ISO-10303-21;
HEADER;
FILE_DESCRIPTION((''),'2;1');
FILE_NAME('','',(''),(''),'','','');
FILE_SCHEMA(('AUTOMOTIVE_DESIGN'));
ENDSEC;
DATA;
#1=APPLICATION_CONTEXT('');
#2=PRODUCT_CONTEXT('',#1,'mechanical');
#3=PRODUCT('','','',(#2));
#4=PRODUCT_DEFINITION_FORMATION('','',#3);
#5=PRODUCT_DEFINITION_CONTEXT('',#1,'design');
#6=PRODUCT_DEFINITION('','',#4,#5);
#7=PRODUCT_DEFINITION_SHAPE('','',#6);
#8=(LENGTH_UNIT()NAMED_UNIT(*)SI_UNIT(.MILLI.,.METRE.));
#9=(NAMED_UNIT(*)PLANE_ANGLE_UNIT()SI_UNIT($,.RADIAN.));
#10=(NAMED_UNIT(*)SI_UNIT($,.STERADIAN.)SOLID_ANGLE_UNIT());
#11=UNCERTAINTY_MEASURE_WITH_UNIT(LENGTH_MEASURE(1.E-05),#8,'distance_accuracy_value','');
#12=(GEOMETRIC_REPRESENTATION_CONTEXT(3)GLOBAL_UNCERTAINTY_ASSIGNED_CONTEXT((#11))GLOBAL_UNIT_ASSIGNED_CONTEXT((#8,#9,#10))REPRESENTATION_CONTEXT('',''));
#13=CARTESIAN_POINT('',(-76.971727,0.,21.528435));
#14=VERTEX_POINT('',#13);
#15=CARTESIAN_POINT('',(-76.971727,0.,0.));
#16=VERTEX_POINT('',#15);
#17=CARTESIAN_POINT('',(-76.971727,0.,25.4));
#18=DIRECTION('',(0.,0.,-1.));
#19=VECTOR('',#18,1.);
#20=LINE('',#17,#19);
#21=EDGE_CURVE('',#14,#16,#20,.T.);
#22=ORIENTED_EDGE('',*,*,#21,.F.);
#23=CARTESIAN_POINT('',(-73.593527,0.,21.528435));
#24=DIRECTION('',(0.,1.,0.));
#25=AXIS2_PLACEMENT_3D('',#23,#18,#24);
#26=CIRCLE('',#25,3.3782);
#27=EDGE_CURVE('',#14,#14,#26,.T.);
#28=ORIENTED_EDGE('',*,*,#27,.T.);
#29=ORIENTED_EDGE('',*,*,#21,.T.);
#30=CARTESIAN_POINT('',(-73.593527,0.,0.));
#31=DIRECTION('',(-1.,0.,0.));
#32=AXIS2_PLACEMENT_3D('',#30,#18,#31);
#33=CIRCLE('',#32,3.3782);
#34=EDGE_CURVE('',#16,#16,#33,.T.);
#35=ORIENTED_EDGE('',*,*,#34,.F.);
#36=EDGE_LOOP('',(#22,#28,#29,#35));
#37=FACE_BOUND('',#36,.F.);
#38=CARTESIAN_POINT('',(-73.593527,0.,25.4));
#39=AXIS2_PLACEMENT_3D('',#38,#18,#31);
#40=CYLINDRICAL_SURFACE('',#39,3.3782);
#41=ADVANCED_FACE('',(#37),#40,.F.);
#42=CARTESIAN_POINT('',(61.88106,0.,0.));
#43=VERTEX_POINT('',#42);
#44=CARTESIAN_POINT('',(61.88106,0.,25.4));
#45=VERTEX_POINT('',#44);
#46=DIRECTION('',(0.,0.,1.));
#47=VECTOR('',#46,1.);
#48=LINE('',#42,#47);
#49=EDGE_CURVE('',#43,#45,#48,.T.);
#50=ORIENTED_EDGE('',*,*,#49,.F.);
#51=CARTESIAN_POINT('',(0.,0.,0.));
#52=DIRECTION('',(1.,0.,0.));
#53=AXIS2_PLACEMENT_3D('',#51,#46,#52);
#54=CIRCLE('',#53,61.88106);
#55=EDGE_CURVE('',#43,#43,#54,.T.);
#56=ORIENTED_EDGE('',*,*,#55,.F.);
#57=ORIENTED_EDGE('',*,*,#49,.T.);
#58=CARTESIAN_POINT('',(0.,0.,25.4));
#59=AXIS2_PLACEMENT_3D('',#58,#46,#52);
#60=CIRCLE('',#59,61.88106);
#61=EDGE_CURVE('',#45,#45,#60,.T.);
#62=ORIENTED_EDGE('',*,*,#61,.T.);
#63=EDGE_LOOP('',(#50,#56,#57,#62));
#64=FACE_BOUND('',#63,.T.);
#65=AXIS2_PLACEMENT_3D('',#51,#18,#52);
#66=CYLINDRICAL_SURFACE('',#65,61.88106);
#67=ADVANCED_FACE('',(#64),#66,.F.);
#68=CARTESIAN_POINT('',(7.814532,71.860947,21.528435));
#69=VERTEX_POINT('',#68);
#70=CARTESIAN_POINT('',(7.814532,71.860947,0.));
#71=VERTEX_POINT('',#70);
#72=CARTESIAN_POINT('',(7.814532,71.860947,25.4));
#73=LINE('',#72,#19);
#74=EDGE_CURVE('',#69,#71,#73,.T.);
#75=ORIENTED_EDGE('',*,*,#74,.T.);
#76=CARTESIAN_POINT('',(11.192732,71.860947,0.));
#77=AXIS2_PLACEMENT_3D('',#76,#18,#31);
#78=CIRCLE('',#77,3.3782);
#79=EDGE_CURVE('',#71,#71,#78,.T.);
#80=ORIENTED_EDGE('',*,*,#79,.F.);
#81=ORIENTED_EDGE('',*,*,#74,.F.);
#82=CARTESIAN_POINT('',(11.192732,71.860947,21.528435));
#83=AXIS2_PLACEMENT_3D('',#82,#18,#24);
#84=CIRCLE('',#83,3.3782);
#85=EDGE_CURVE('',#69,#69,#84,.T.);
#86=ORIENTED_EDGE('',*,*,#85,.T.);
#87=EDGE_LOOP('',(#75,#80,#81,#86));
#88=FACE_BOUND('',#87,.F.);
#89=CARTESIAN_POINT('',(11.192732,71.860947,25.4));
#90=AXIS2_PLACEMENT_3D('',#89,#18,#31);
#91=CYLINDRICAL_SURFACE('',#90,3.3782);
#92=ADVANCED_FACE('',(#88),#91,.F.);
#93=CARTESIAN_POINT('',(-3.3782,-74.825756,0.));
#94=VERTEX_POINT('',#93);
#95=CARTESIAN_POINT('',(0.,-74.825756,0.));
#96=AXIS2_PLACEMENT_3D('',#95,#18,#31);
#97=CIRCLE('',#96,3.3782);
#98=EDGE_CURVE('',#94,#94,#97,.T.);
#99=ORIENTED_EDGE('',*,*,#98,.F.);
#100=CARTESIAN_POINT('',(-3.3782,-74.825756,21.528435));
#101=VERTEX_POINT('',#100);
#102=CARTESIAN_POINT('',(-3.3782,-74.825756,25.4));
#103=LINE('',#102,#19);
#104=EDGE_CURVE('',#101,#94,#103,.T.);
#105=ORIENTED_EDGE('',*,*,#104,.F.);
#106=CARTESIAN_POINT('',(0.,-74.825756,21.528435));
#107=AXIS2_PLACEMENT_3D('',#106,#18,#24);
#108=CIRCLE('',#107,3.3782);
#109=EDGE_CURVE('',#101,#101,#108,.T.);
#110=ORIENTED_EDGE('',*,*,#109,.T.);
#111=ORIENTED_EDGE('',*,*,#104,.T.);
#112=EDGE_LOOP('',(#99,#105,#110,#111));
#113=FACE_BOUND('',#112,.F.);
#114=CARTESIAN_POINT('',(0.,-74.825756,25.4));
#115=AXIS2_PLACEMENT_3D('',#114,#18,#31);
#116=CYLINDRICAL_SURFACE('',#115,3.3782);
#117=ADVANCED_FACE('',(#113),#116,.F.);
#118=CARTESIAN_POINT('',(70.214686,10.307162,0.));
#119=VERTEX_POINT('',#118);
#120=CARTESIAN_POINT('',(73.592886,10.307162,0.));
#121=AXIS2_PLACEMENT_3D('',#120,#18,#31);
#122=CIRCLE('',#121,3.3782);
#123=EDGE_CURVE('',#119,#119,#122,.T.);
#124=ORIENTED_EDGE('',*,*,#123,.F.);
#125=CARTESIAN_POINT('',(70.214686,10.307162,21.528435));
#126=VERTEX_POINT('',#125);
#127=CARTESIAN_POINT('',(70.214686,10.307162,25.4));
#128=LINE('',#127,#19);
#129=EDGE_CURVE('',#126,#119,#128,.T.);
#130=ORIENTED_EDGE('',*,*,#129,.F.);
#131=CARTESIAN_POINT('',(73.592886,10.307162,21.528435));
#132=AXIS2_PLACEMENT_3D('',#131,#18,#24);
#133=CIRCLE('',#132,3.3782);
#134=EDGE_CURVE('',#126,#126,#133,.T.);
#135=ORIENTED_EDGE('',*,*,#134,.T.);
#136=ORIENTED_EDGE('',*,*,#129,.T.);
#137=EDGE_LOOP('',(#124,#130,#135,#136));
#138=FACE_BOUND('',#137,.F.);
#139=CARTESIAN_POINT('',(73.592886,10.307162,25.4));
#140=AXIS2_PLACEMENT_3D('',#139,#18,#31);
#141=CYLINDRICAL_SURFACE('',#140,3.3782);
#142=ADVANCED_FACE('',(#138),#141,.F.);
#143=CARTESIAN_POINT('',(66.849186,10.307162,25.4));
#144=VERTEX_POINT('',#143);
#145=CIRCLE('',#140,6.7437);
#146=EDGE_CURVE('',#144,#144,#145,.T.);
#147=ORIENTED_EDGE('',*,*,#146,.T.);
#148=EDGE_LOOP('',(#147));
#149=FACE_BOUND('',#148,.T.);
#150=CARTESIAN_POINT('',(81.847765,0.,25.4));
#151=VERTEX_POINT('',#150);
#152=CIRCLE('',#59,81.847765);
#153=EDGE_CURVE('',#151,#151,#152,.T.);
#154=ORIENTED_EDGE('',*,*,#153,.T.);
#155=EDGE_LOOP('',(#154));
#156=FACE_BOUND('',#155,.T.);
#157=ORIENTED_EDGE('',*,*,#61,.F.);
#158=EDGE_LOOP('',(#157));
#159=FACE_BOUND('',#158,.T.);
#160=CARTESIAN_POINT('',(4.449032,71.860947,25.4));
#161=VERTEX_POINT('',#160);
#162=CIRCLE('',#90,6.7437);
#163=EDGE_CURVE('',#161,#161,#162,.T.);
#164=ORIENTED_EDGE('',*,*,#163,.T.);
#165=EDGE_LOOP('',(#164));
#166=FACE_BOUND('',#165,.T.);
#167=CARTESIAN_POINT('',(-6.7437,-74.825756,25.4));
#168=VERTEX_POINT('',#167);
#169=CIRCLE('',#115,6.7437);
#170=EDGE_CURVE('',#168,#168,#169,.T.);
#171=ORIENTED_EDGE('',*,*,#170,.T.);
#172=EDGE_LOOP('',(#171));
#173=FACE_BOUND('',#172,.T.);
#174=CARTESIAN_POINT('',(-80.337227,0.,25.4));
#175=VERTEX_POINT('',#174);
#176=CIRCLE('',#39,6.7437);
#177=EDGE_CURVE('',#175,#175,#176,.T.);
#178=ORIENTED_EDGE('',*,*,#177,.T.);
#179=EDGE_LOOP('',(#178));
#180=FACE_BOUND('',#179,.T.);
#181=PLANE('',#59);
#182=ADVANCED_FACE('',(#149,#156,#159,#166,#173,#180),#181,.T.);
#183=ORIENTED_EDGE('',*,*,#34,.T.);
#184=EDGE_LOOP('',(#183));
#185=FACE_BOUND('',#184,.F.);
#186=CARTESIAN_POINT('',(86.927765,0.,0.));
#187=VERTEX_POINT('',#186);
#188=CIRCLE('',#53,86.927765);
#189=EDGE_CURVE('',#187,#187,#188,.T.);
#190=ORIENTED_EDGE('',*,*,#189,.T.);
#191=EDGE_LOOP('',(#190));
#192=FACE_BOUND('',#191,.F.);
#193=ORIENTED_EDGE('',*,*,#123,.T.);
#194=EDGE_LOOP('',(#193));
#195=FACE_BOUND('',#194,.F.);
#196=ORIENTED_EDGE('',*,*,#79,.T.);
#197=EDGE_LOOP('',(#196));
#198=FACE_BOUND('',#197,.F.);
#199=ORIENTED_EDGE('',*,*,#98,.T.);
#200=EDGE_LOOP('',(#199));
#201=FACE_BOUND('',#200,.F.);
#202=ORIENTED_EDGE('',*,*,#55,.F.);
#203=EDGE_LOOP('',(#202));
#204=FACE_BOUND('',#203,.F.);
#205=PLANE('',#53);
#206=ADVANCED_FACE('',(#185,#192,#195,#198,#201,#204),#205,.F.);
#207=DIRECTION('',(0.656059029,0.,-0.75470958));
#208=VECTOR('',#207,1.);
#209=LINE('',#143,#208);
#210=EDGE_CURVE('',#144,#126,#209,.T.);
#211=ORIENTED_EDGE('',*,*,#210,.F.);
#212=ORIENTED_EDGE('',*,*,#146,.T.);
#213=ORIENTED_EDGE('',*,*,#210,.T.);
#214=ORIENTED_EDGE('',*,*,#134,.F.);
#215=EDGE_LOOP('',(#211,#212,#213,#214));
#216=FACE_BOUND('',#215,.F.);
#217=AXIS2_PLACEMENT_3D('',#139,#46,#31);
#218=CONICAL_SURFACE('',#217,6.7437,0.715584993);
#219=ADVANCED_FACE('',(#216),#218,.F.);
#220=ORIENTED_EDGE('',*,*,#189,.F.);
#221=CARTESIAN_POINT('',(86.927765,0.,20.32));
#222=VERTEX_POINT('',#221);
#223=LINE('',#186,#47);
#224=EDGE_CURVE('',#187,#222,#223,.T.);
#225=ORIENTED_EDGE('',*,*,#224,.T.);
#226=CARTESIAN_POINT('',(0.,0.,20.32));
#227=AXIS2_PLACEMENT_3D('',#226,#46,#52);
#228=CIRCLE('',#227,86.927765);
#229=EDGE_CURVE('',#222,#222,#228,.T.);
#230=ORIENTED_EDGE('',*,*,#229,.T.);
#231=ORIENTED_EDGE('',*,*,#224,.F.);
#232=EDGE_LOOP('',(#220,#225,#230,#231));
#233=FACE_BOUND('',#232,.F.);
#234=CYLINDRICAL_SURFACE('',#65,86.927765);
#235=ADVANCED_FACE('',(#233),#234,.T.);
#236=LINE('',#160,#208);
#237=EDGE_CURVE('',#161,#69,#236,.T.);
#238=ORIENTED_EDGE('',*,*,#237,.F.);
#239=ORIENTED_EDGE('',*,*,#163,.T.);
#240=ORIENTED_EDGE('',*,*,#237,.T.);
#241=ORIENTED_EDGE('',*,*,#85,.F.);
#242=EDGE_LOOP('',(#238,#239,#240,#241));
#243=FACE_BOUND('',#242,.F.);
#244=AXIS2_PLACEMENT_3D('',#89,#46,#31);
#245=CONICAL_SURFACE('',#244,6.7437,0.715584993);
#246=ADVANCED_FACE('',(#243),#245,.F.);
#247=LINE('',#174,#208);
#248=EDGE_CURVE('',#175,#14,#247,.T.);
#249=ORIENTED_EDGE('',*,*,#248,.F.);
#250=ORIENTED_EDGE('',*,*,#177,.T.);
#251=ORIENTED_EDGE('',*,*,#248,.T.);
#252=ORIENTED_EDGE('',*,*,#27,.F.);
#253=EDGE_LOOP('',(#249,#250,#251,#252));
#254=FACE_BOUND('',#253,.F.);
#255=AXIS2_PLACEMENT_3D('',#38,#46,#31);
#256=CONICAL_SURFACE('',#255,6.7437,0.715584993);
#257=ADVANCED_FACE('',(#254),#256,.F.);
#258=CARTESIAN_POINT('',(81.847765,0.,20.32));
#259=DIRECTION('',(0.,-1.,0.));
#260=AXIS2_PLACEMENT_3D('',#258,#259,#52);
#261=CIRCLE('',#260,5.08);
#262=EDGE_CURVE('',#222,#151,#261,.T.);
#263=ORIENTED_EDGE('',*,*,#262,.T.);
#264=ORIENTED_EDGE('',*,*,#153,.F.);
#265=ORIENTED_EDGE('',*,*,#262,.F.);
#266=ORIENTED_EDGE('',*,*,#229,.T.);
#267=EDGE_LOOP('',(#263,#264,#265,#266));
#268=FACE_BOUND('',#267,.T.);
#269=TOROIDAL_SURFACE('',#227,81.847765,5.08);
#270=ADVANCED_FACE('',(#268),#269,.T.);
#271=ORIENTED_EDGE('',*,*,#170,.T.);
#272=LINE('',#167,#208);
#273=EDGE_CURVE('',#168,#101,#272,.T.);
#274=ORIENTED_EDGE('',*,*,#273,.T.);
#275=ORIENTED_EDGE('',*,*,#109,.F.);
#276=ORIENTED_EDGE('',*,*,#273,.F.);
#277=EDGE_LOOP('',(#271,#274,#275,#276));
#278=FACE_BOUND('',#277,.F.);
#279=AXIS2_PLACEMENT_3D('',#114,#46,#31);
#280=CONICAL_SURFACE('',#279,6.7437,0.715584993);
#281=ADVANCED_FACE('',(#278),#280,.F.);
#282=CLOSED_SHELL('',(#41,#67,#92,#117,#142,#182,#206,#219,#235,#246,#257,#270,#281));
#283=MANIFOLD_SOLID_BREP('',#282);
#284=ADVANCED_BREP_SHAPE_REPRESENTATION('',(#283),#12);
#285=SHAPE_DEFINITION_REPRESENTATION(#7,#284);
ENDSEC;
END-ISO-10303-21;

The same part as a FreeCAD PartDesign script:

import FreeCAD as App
import Part
import Sketcher
Q = App.Units.Quantity


def edges_at(feature, points):
    """Names of the edges that pass closest to the given points."""
    edges = feature.Shape.Edges
    near = lambda p: min(range(len(edges)), key=lambda i: edges[i].distToShape(Part.Vertex(*p))[0])
    return sorted({f"Edge{near(p) + 1}" for p in points})

doc = App.newDocument("Part")
body = doc.addObject("PartDesign::Body", "Body")

# Sketch on XY plane
sketch1 = body.newObject("Sketcher::SketchObject", "Sketch")
sketch1.AttachmentSupport = (doc.getObject("XY_Plane"), [""])
sketch1.MapMode = "FlatFace"
sketch1.addGeometry([
    Part.Circle(App.Vector(0, 0, 0), App.Vector(0, 0, 1), 86.927765),
    Part.Circle(App.Vector(0, 0, 0), App.Vector(0, 0, 1), 61.88106),
], False)
sketch1.addConstraint([
    Sketcher.Constraint("Coincident", 0, 3, -1, 1),
    Sketcher.Constraint("Coincident", 1, 3, -1, 1),
    Sketcher.Constraint("Diameter", 0, Q("173.85553 mm")),
    Sketcher.Constraint("Diameter", 1, Q("123.76212 mm")),
])
pad1 = body.newObject("PartDesign::Pad", "Pad")
pad1.Profile = sketch1
pad1.Length = Q("1 in")

# Sketch on XY plane
sketch2 = body.newObject("Sketcher::SketchObject", "Sketch001")
sketch2.AttachmentSupport = (doc.getObject("XY_Plane"), [""])
sketch2.MapMode = "FlatFace"
sketch2.AttachmentOffset = App.Placement(App.Vector(0, 0, 1 * 25.4), App.Rotation())
sketch2.addGeometry([
    Part.Circle(App.Vector(-73.593527, 0, 0), App.Vector(0, 0, 1), 3.3782),
    Part.Circle(App.Vector(0, -74.825756, 0), App.Vector(0, 0, 1), 3.3782),
    Part.Circle(App.Vector(73.592886, 10.307162, 0), App.Vector(0, 0, 1), 3.3782),
    Part.Circle(App.Vector(11.192732, 71.860947, 0), App.Vector(0, 0, 1), 3.3782),
], False)
sketch2.addConstraint([
    Sketcher.Constraint("Equal", 0, 1),
    Sketcher.Constraint("Equal", 1, 2),
    Sketcher.Constraint("Equal", 2, 3),
    Sketcher.Constraint("PointOnObject", 0, 3, -1),
    Sketcher.Constraint("PointOnObject", 1, 3, -2),
    Sketcher.Constraint("Diameter", 0, Q("0.266 in")),
    Sketcher.Constraint("DistanceY", 1, 3, 2, 3, Q("85.132918 mm")),
    Sketcher.Constraint("DistanceX", 0, 3, 3, 3, Q("84.786259 mm")),
    Sketcher.Constraint("DistanceX", 0, 3, -1, 1, Q("73.593527 mm")),
    Sketcher.Constraint("DistanceY", 1, 3, -1, 1, Q("74.825756 mm")),
    Sketcher.Constraint("DistanceX", -1, 1, 2, 3, Q("73.592886 mm")),
    Sketcher.Constraint("DistanceY", -1, 1, 3, 3, Q("71.860947 mm")),
])
doc.recompute()
hole = body.newObject("PartDesign::Hole", "Hole")
hole.Profile = sketch2
hole.ThreadType = "None"
hole.Diameter = Q("0.266 in")
hole.DepthType = "ThroughAll"
hole.HoleCutType = "Countersink"
hole.HoleCutDiameter = Q("0.531 in")
hole.HoleCutCountersinkAngle = 82
doc.recompute()

fillet = body.newObject("PartDesign::Fillet", "Fillet")
fillet.Base = (hole, edges_at(hole, [(-86.928, 0, 25.4)]))
fillet.Radius = Q("0.2 in")

doc.recompute()
